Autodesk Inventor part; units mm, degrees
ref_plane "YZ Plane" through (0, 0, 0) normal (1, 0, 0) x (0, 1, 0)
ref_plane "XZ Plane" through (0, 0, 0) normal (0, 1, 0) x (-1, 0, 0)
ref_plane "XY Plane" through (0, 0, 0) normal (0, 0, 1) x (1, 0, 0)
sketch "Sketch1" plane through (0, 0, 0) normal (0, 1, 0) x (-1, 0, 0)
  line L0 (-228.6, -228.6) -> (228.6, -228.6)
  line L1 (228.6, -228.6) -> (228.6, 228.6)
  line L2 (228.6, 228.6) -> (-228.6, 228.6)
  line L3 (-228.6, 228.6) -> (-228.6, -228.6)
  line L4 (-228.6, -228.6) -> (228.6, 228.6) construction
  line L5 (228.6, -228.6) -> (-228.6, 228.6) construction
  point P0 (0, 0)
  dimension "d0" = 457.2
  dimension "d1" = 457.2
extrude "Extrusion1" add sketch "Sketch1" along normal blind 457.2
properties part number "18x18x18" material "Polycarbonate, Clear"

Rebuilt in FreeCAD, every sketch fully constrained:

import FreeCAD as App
import Part
import Sketcher
from FreeCAD import Vector
Q = App.Units.Quantity

doc = App.newDocument("Part")
body = doc.addObject("PartDesign::Body", "Body")

# Sketch on XZ plane
sketch1 = body.newObject("Sketcher::SketchObject", "Sketch")
sketch1.AttachmentSupport = (doc.getObject("XZ_Plane"), [""])
sketch1.MapMode = "FlatFace"
sketch1.addGeometry([
    Part.LineSegment(Vector(229, 229, 0), Vector(229, -229, 0)),
    Part.LineSegment(Vector(229, -229, 0), Vector(-229, -229, 0)),
    Part.LineSegment(Vector(-229, -229, 0), Vector(-229, 229, 0)),
    Part.LineSegment(Vector(-229, 229, 0), Vector(229, 229, 0)),
], False)
sketch1.addConstraint([
    Sketcher.Constraint("Coincident", 0, 2, 1, 1),
    Sketcher.Constraint("Coincident", 1, 2, 2, 1),
    Sketcher.Constraint("Coincident", 2, 2, 3, 1),
    Sketcher.Constraint("Coincident", 3, 2, 0, 1),
    Sketcher.Constraint("Vertical", 0),
    Sketcher.Constraint("Horizontal", 1),
    Sketcher.Constraint("Vertical", 2),
    Sketcher.Constraint("Horizontal", 3),
    Sketcher.Constraint("Symmetric", 0, 2, 2, 2, -1, 1),
    Sketcher.Constraint("Equal", 3, 0),
    Sketcher.Constraint("DistanceX", 1, 2, 1, 1, Q("18 in")),
])
pad1 = body.newObject("PartDesign::Pad", "Pad")
pad1.Profile = sketch1
pad1.Length = Q("18 in")
pad1.Reversed = True

doc.recompute()
